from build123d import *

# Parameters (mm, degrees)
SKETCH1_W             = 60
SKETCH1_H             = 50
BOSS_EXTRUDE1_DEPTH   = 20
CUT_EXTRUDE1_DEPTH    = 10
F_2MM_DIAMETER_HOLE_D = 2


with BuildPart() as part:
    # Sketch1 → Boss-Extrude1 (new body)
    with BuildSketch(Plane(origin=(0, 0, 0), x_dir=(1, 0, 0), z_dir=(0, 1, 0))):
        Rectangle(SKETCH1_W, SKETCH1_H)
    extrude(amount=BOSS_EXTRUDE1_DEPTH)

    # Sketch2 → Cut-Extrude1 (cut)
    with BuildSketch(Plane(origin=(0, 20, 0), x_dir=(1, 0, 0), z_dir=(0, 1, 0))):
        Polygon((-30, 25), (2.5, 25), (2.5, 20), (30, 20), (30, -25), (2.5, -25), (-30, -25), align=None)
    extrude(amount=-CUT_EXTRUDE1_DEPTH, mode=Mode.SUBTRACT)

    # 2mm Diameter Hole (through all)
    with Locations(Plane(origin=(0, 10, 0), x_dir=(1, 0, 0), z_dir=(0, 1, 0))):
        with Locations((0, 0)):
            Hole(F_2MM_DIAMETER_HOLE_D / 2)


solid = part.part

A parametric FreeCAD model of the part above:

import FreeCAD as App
import Part
import Sketcher
from FreeCAD import Vector

doc = App.newDocument("Part")
body = doc.addObject("PartDesign::Body", "Body")

# Sketch on XZ plane
sketch1 = doc.addObject("Sketcher::SketchObject", "Sketch")
body.addObject(sketch1)
sketch1.AttachmentSupport = (doc.XZ_Plane, [""])
sketch1.MapMode = "FlatFace"
sketch1.addGeometry(Part.LineSegment(Vector(-30, -25, 0), Vector(-30, 25, 0)), False)
sketch1.addGeometry(Part.LineSegment(Vector(-30, 25, 0), Vector(30, 25, 0)), False)
sketch1.addGeometry(Part.LineSegment(Vector(30, 25, 0), Vector(30, -25, 0)), False)
sketch1.addGeometry(Part.LineSegment(Vector(30, -25, 0), Vector(-30, -25, 0)), False)
sketch1.addConstraint(Sketcher.Constraint("Coincident", 0, 2, 1, 1))
sketch1.addConstraint(Sketcher.Constraint("Coincident", 1, 2, 2, 1))
sketch1.addConstraint(Sketcher.Constraint("Coincident", 2, 2, 3, 1))
sketch1.addConstraint(Sketcher.Constraint("Coincident", 3, 2, 0, 1))
sketch1.addConstraint(Sketcher.Constraint("Vertical", 0))
sketch1.addConstraint(Sketcher.Constraint("Horizontal", 1))
sketch1.addConstraint(Sketcher.Constraint("Vertical", 2))
sketch1.addConstraint(Sketcher.Constraint("Horizontal", 3))
sketch1.addConstraint(Sketcher.Constraint("Symmetric", 0, 2, 2, 2, -1, 1))
sketch1.addConstraint(Sketcher.Constraint("DistanceX", 1, 1, 1, 2, 60.0))
sketch1.addConstraint(Sketcher.Constraint("DistanceY", 0, 1, 0, 2, 50.0))
pad1 = doc.addObject("PartDesign::Pad", "Pad")
body.addObject(pad1)
pad1.Profile = sketch1
pad1.Length = 20
pad1.Reversed = True

# Sketch on XZ plane
sketch2 = doc.addObject("Sketcher::SketchObject", "Sketch001")
body.addObject(sketch2)
sketch2.AttachmentSupport = (doc.XZ_Plane, [""])
sketch2.MapMode = "FlatFace"
sketch2.AttachmentOffset = App.Placement(Vector(0, 0, -20), App.Rotation())
sketch2.addGeometry(Part.LineSegment(Vector(2, -25, 0), Vector(-30, -25, 0)), False)
sketch2.addGeometry(Part.LineSegment(Vector(-30, -25, 0), Vector(-30, 25, 0)), False)
sketch2.addGeometry(Part.LineSegment(Vector(-30, 25, 0), Vector(30, 25, 0)), False)
sketch2.addGeometry(Part.LineSegment(Vector(30, 25, 0), Vector(30, -20, 0)), False)
sketch2.addGeometry(Part.LineSegment(Vector(30, -20, 0), Vector(2, -20, 0)), False)
sketch2.addGeometry(Part.LineSegment(Vector(2, -20, 0), Vector(2, -25, 0)), False)
sketch2.addConstraint(Sketcher.Constraint("Coincident", 0, 2, 1, 1))
sketch2.addConstraint(Sketcher.Constraint("Coincident", 1, 2, 2, 1))
sketch2.addConstraint(Sketcher.Constraint("Coincident", 2, 2, 3, 1))
sketch2.addConstraint(Sketcher.Constraint("Coincident", 3, 2, 4, 1))
sketch2.addConstraint(Sketcher.Constraint("Coincident", 4, 2, 5, 1))
sketch2.addConstraint(Sketcher.Constraint("Coincident", 5, 2, 0, 1))
sketch2.addConstraint(Sketcher.Constraint("Horizontal", 0))
sketch2.addConstraint(Sketcher.Constraint("Vertical", 1))
sketch2.addConstraint(Sketcher.Constraint("Horizontal", 2))
sketch2.addConstraint(Sketcher.Constraint("Vertical", 3))
sketch2.addConstraint(Sketcher.Constraint("Horizontal", 4))
sketch2.addConstraint(Sketcher.Constraint("Vertical", 5))
sketch2.addConstraint(Sketcher.Constraint("Symmetric", 0, 2, 2, 2, -1, 1))
sketch2.addConstraint(Sketcher.Constraint("DistanceX", 2, 1, 2, 2, 60.0))
sketch2.addConstraint(Sketcher.Constraint("DistanceY", 1, 1, 1, 2, 50.0))
sketch2.addConstraint(Sketcher.Constraint("DistanceY", 3, 2, 3, 1, 45.0))
sketch2.addConstraint(Sketcher.Constraint("DistanceX", 0, 2, 0, 1, 32.5))
pocket1 = doc.addObject("PartDesign::Pocket", "Pocket")
body.addObject(pocket1)
pocket1.Profile = sketch2
pocket1.Length = 10
pocket1.Reversed = True

# Sketch on XZ plane
sketch3 = doc.addObject("Sketcher::SketchObject", "Sketch002")
body.addObject(sketch3)
sketch3.AttachmentSupport = (doc.XZ_Plane, [""])
sketch3.MapMode = "FlatFace"
sketch3.AttachmentOffset = App.Placement(Vector(0, 0, -10), App.Rotation())
sketch3.addGeometry(Part.Circle(Vector(0, 0, 0), Vector(0, 0, 1), 1), False)
sketch3.addConstraint(Sketcher.Constraint("Coincident", 0, 3, -1, 1))
sketch3.addConstraint(Sketcher.Constraint("Diameter", 0, 2.0))
doc.recompute()
hole = doc.addObject("PartDesign::Hole", "Hole")
body.addObject(hole)
hole.Profile = sketch3
hole.ThreadType = "None"
hole.Diameter = 2
hole.DepthType = "ThroughAll"
hole.Reversed = True

doc.recompute()
